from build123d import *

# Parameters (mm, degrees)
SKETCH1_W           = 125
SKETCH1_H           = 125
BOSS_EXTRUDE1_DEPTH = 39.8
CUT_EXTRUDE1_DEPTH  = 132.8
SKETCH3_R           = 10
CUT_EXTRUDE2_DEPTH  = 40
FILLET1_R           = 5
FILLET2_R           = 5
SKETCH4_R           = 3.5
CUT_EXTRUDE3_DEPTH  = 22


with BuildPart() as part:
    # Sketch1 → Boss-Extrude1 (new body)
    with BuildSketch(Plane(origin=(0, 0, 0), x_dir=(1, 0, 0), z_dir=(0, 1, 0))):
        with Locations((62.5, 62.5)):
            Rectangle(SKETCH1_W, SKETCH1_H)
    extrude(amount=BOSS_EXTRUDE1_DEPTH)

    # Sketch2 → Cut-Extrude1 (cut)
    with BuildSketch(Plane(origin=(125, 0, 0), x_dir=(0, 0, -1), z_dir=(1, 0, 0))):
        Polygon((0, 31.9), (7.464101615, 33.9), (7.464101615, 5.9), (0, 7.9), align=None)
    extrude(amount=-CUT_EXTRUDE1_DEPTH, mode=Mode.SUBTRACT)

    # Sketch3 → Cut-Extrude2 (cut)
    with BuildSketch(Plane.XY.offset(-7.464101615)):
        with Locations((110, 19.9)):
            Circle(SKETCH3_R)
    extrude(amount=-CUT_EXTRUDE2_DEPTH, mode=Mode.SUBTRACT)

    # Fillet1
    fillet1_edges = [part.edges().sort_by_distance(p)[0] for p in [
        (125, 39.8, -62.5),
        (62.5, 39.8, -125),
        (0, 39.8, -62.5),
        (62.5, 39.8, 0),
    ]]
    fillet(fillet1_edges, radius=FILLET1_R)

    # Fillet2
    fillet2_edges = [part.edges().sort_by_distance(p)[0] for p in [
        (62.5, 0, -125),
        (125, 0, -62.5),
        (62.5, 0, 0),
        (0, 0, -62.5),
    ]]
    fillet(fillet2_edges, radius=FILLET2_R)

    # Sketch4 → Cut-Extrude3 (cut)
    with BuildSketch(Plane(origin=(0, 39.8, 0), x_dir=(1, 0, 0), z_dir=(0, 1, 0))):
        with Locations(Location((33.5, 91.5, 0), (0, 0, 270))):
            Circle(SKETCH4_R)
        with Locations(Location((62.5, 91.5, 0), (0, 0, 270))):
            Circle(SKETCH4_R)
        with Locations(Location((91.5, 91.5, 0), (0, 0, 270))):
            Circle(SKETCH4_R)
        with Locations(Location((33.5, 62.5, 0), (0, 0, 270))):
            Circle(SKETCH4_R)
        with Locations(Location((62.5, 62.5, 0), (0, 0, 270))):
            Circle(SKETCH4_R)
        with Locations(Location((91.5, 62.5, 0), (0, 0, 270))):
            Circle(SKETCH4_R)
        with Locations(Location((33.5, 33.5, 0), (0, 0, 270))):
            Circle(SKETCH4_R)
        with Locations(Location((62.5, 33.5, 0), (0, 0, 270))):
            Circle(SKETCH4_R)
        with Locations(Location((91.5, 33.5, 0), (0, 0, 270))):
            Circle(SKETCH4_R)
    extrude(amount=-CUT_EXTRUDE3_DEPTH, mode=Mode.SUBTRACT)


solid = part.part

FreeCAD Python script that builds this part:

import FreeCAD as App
import Part
import Sketcher
Q = App.Units.Quantity


def edges_at(feature, points):
    """Names of the edges that pass closest to the given points."""
    edges = feature.Shape.Edges
    near = lambda p: min(range(len(edges)), key=lambda i: edges[i].distToShape(Part.Vertex(*p))[0])
    return sorted({f"Edge{near(p) + 1}" for p in points})


def add_polygon(sketch, points):
    """Adds a closed chain of lines whose ends are joined by coincident constraints."""
    first, n = sketch.GeometryCount, len(points)
    for a, b in zip(points, points[1:] + points[:1]):
        sketch.addGeometry(Part.LineSegment(App.Vector(*a, 0), App.Vector(*b, 0)), False)
    for i in range(n):
        sketch.addConstraint(Sketcher.Constraint("Coincident", first + i, 2, first + (i + 1) % n, 1))

doc = App.newDocument("Part")
params = doc.addObject("Spreadsheet::Sheet", "Params")
for row, (alias, value) in enumerate([
    ("sketch1_width", "125 mm"),
    ("pad1_length", "39.8 mm"),
    ("sketch2_width", "24 mm"),
    ("sketch2_width2", "28 mm"),
    ("pocket1_length", "132.8 mm"),
    ("sketch3_diameter", "20 mm"),
    ("pocket2_length", "40 mm"),
    ("fillet_radius", "5 mm"),
    ("fillet2_radius", "5 mm"),
    ("sketch4_diameter", "7 mm"),
    ("pocket3_length", "22 mm"),
], start=1):
    params.set(f"A{row}", alias)
    params.set(f"B{row}", "=" + value)
    params.setAlias(f"B{row}", alias)

body = doc.addObject("PartDesign::Body", "Body")

# Sketch on XZ plane
sketch1 = body.newObject("Sketcher::SketchObject", "Sketch")
sketch1.AttachmentSupport = (doc.getObject("XZ_Plane"), [""])
sketch1.MapMode = "FlatFace"
add_polygon(sketch1, [(0, -125), (0, 0), (125, 0), (125, -125)])  # lines 0-3
sketch1.addConstraint([
    Sketcher.Constraint("Vertical", 0),
    Sketcher.Constraint("Horizontal", 1),
    Sketcher.Constraint("Vertical", 2),
    Sketcher.Constraint("Horizontal", 3),
    Sketcher.Constraint("Coincident", 0, 2, -1, 1),
    Sketcher.Constraint("Equal", 3, 0),
    Sketcher.Constraint("DistanceX", 1, 1, 1, 2, Q("125 mm")),
])
sketch1.setExpression("Constraints[10]", "Params.sketch1_width")
pad1 = body.newObject("PartDesign::Pad", "Pad")
pad1.Profile = sketch1
pad1.setExpression("Length", "Params.pad1_length")
pad1.Reversed = True

# Sketch on YZ plane
sketch2 = body.newObject("Sketcher::SketchObject", "Sketch001")
sketch2.AttachmentSupport = (doc.getObject("YZ_Plane"), [""])
sketch2.MapMode = "FlatFace"
sketch2.AttachmentOffset = App.Placement(App.Vector(0, 0, 125), App.Rotation())
add_polygon(sketch2, [(34, -7), (32, 0), (8, 0), (6, -7)])  # lines 0-3
sketch2.addConstraint([
    Sketcher.Constraint("Horizontal", 1),
    Sketcher.Constraint("Horizontal", 3),
    Sketcher.Constraint("PointOnObject", 0, 2, -1),
    Sketcher.Constraint("Equal", 0, 2),
    Sketcher.Constraint("DistanceX", 1, 2, 1, 1, Q("24 mm")),
    Sketcher.Constraint("DistanceX", 3, 1, 3, 2, Q("28 mm")),
    Sketcher.Constraint("Angle", 0, Q("105 deg")),
    Sketcher.Constraint("DistanceX", -1, 1, 0, 2, Q("31.9 mm")),
])
sketch2.setExpression("Constraints[8]", "Params.sketch2_width")
sketch2.setExpression("Constraints[9]", "Params.sketch2_width2")
pocket1 = body.newObject("PartDesign::Pocket", "Pocket")
pocket1.Profile = sketch2
pocket1.setExpression("Length", "Params.pocket1_length")

# Sketch on XY plane
sketch3 = body.newObject("Sketcher::SketchObject", "Sketch002")
sketch3.AttachmentSupport = (doc.getObject("XY_Plane"), [""])
sketch3.MapMode = "FlatFace"
sketch3.AttachmentOffset = App.Placement(App.Vector(0, 0, -7.464102), App.Rotation())
sketch3.addGeometry(Part.Circle(App.Vector(110, 20, 0), App.Vector(0, 0, 1), 10), False)
sketch3.addConstraint([
    Sketcher.Constraint("Diameter", 0, Q("20 mm")),
    Sketcher.Constraint("DistanceX", -1, 1, 0, 3, Q("110 mm")),
    Sketcher.Constraint("DistanceY", -1, 1, 0, 3, Q("19.9 mm")),
])
sketch3.setExpression("Constraints[0]", "Params.sketch3_diameter")
pocket2 = body.newObject("PartDesign::Pocket", "Pocket001")
pocket2.Profile = sketch3
pocket2.setExpression("Length", "Params.pocket2_length")
doc.recompute()

fillet = body.newObject("PartDesign::Fillet", "Fillet")
fillet.Base = (pocket2, edges_at(pocket2, [
    (125, 39.8, -62.5),
    (62.5, 39.8, -125),
    (0, 39.8, -62.5),
    (62.5, 39.8, 0),
]))
fillet.setExpression("Radius", "Params.fillet_radius")
doc.recompute()

fillet2 = body.newObject("PartDesign::Fillet", "Fillet001")
fillet2.Base = (fillet, edges_at(fillet, [
    (62.5, 0, -125),
    (125, 0, -62.5),
    (62.5, 0, 0),
    (0, 0, -62.5),
]))
fillet2.setExpression("Radius", "Params.fillet2_radius")

# Sketch on XZ plane
sketch4 = body.newObject("Sketcher::SketchObject", "Sketch003")
sketch4.AttachmentSupport = (doc.getObject("XZ_Plane"), [""])
sketch4.MapMode = "FlatFace"
sketch4.AttachmentOffset = App.Placement(App.Vector(0, 0, -39.8), App.Rotation())
sketch4.addGeometry([
    Part.Circle(App.Vector(33.5, -91.5, 0), App.Vector(0, 0, 1), 3.5),  # 0
    Part.Circle(App.Vector(62.5, -91.5, 0), App.Vector(0, 0, 1), 3.5),  # 1
    Part.Circle(App.Vector(91.5, -91.5, 0), App.Vector(0, 0, 1), 3.5),  # 2
    Part.Circle(App.Vector(33.5, -62.5, 0), App.Vector(0, 0, 1), 3.5),  # 3
    Part.Circle(App.Vector(62.5, -62.5, 0), App.Vector(0, 0, 1), 3.5),  # 4
    Part.Circle(App.Vector(91.5, -62.5, 0), App.Vector(0, 0, 1), 3.5),  # 5
    Part.Circle(App.Vector(33.5, -33.5, 0), App.Vector(0, 0, 1), 3.5),  # 6
    Part.Circle(App.Vector(62.5, -33.5, 0), App.Vector(0, 0, 1), 3.5),  # 7
    Part.Circle(App.Vector(91.5, -33.5, 0), App.Vector(0, 0, 1), 3.5),  # 8
], False)
sketch4.addConstraint([
    Sketcher.Constraint("Equal", 0, 1),
    Sketcher.Constraint("Equal", 1, 2),
    Sketcher.Constraint("Equal", 2, 3),
    Sketcher.Constraint("Equal", 3, 4),
    Sketcher.Constraint("Equal", 4, 5),
    Sketcher.Constraint("Equal", 5, 6),
    Sketcher.Constraint("Equal", 6, 7),
    Sketcher.Constraint("Equal", 7, 8),
    Sketcher.Constraint("Horizontal", 0, 3, 1, 3),
    Sketcher.Constraint("Horizontal", 1, 3, 2, 3),
    Sketcher.Constraint("Horizontal", 3, 3, 4, 3),
    Sketcher.Constraint("Horizontal", 4, 3, 5, 3),
    Sketcher.Constraint("Horizontal", 6, 3, 7, 3),
    Sketcher.Constraint("Horizontal", 7, 3, 8, 3),
    Sketcher.Constraint("Vertical", 0, 3, 3, 3),
    Sketcher.Constraint("Vertical", 1, 3, 4, 3),
    Sketcher.Constraint("Vertical", 2, 3, 5, 3),
    Sketcher.Constraint("Vertical", 3, 3, 6, 3),
    Sketcher.Constraint("Vertical", 4, 3, 7, 3),
    Sketcher.Constraint("Vertical", 5, 3, 8, 3),
    Sketcher.Constraint("Diameter", 0, Q("7 mm")),
    Sketcher.Constraint("DistanceX", 0, 3, 1, 3, Q("29 mm")),
    Sketcher.Constraint("DistanceX", 1, 3, 2, 3, Q("29 mm")),
    Sketcher.Constraint("DistanceY", 0, 3, 3, 3, Q("29 mm")),
    Sketcher.Constraint("DistanceY", 3, 3, 6, 3, Q("29 mm")),
    Sketcher.Constraint("DistanceX", -1, 1, 0, 3, Q("33.5 mm")),
    Sketcher.Constraint("DistanceY", 0, 3, -1, 1, Q("91.5 mm")),
])
sketch4.setExpression("Constraints[20]", "Params.sketch4_diameter")
pocket3 = body.newObject("PartDesign::Pocket", "Pocket002")
pocket3.Profile = sketch4
pocket3.setExpression("Length", "Params.pocket3_length")
pocket3.Reversed = True

doc.recompute()
